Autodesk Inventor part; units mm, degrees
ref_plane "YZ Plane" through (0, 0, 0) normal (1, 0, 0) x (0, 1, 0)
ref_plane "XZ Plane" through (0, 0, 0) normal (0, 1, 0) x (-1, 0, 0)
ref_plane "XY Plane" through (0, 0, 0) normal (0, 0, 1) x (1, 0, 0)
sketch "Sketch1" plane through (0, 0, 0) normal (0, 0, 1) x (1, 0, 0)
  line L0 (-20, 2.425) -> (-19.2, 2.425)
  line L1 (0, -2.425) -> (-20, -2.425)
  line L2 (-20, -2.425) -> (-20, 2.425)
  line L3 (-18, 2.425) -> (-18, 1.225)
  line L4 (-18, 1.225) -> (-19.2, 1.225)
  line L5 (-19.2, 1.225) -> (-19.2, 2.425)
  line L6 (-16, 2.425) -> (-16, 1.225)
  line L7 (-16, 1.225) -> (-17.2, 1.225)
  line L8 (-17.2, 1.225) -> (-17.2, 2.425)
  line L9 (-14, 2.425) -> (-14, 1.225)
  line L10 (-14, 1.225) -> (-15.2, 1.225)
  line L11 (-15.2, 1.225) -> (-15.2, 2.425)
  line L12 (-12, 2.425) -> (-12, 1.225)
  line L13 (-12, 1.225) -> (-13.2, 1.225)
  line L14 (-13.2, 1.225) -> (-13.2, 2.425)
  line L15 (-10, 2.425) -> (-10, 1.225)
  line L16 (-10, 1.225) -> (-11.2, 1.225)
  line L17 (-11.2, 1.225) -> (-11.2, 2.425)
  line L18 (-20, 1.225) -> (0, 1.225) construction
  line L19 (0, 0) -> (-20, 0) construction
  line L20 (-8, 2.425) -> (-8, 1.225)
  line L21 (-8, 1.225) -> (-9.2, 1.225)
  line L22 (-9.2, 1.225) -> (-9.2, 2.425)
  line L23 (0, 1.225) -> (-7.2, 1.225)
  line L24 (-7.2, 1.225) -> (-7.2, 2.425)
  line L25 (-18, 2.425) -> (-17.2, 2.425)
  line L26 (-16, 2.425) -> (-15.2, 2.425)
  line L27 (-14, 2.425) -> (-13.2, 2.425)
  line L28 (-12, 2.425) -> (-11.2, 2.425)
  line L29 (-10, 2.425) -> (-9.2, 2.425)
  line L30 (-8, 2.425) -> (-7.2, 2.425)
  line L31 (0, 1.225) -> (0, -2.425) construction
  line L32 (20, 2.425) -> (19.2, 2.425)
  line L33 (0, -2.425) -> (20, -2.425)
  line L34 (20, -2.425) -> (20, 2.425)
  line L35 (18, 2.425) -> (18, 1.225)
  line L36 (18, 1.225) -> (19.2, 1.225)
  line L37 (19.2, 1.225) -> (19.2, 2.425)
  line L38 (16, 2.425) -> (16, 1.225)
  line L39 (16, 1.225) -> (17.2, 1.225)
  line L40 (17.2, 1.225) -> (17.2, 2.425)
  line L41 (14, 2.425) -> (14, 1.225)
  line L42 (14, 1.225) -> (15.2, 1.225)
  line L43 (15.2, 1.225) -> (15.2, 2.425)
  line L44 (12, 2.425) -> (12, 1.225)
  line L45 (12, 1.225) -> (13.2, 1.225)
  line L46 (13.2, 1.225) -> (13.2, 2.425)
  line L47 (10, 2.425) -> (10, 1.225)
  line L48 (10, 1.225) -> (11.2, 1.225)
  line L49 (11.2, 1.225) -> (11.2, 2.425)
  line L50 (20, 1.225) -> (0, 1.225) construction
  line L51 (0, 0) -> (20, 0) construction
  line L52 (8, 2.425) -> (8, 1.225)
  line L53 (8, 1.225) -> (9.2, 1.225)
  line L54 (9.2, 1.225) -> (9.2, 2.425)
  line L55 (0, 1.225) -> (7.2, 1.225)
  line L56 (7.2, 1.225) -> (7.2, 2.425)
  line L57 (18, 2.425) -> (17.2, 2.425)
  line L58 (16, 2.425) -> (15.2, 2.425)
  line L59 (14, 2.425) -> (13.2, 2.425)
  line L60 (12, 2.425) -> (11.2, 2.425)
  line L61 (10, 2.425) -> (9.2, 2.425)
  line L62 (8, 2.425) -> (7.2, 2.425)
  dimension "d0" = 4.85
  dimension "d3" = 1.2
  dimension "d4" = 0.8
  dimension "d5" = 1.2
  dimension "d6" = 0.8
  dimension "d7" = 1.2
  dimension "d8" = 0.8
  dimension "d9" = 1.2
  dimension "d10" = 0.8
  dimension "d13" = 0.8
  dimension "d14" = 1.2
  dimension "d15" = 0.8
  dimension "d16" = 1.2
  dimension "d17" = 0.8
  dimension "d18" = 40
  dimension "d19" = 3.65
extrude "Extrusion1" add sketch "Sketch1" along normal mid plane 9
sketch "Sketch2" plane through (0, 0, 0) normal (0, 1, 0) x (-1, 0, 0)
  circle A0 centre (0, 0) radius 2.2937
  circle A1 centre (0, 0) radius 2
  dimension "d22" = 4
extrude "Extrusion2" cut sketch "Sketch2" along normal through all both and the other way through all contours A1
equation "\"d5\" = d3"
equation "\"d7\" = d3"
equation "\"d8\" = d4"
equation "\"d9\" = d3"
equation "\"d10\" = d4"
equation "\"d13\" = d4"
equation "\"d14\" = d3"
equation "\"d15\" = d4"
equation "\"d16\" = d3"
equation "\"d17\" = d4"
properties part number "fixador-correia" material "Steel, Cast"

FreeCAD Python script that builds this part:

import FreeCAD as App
import Part
import Sketcher
from FreeCAD import Vector

doc = App.newDocument("Part")
body = doc.addObject("PartDesign::Body", "Body")

sketch1 = body.newObject("Sketcher::SketchObject", "Sketch")
sketch1.AttachmentSupport = (doc.getObject("XY_Plane"), [""])
sketch1.MapMode = "FlatFace"
sketch1.addGeometry([
    Part.LineSegment(Vector(-19.2, 2.4, 0), Vector(-20, 2.4, 0)),
    Part.LineSegment(Vector(-20, 2.4, 0), Vector(-20, -2.4, 0)),
    Part.LineSegment(Vector(-20, -2.4, 0), Vector(20, -2.4, 0)),
    Part.LineSegment(Vector(20, -2.4, 0), Vector(20, 2.4, 0)),
    Part.LineSegment(Vector(20, 2.4, 0), Vector(19.2, 2.4, 0)),
    Part.LineSegment(Vector(19.2, 2.4, 0), Vector(19.2, 1.2, 0)),
    Part.LineSegment(Vector(19.2, 1.2, 0), Vector(18, 1.2, 0)),
    Part.LineSegment(Vector(18, 1.2, 0), Vector(18, 2.4, 0)),
    Part.LineSegment(Vector(18, 2.4, 0), Vector(17.2, 2.4, 0)),
    Part.LineSegment(Vector(17.2, 2.4, 0), Vector(17.2, 1.2, 0)),
    Part.LineSegment(Vector(17.2, 1.2, 0), Vector(16, 1.2, 0)),
    Part.LineSegment(Vector(16, 1.2, 0), Vector(16, 2.4, 0)),
    Part.LineSegment(Vector(16, 2.4, 0), Vector(15.2, 2.4, 0)),
    Part.LineSegment(Vector(15.2, 2.4, 0), Vector(15.2, 1.2, 0)),
    Part.LineSegment(Vector(15.2, 1.2, 0), Vector(14, 1.2, 0)),
    Part.LineSegment(Vector(14, 1.2, 0), Vector(14, 2.4, 0)),
    Part.LineSegment(Vector(14, 2.4, 0), Vector(13.2, 2.4, 0)),
    Part.LineSegment(Vector(13.2, 2.4, 0), Vector(13.2, 1.2, 0)),
    Part.LineSegment(Vector(13.2, 1.2, 0), Vector(12, 1.2, 0)),
    Part.LineSegment(Vector(12, 1.2, 0), Vector(12, 2.4, 0)),
    Part.LineSegment(Vector(12, 2.4, 0), Vector(11.2, 2.4, 0)),
    Part.LineSegment(Vector(11.2, 2.4, 0), Vector(11.2, 1.2, 0)),
    Part.LineSegment(Vector(11.2, 1.2, 0), Vector(10, 1.2, 0)),
    Part.LineSegment(Vector(10, 1.2, 0), Vector(10, 2.4, 0)),
    Part.LineSegment(Vector(10, 2.4, 0), Vector(9.2, 2.4, 0)),
    Part.LineSegment(Vector(9.2, 2.4, 0), Vector(9.2, 1.2, 0)),
    Part.LineSegment(Vector(9.2, 1.2, 0), Vector(8, 1.2, 0)),
    Part.LineSegment(Vector(8, 1.2, 0), Vector(8, 2.4, 0)),
    Part.LineSegment(Vector(8, 2.4, 0), Vector(7.2, 2.4, 0)),
    Part.LineSegment(Vector(7.2, 2.4, 0), Vector(7.2, 1.2, 0)),
    Part.LineSegment(Vector(7.2, 1.2, 0), Vector(-7.2, 1.2, 0)),
    Part.LineSegment(Vector(-7.2, 1.2, 0), Vector(-7.2, 2.4, 0)),
    Part.LineSegment(Vector(-7.2, 2.4, 0), Vector(-8, 2.4, 0)),
    Part.LineSegment(Vector(-8, 2.4, 0), Vector(-8, 1.2, 0)),
    Part.LineSegment(Vector(-8, 1.2, 0), Vector(-9.2, 1.2, 0)),
    Part.LineSegment(Vector(-9.2, 1.2, 0), Vector(-9.2, 2.4, 0)),
    Part.LineSegment(Vector(-9.2, 2.4, 0), Vector(-10, 2.4, 0)),
    Part.LineSegment(Vector(-10, 2.4, 0), Vector(-10, 1.2, 0)),
    Part.LineSegment(Vector(-10, 1.2, 0), Vector(-11.2, 1.2, 0)),
    Part.LineSegment(Vector(-11.2, 1.2, 0), Vector(-11.2, 2.4, 0)),
    Part.LineSegment(Vector(-11.2, 2.4, 0), Vector(-12, 2.4, 0)),
    Part.LineSegment(Vector(-12, 2.4, 0), Vector(-12, 1.2, 0)),
    Part.LineSegment(Vector(-12, 1.2, 0), Vector(-13.2, 1.2, 0)),
    Part.LineSegment(Vector(-13.2, 1.2, 0), Vector(-13.2, 2.4, 0)),
    Part.LineSegment(Vector(-13.2, 2.4, 0), Vector(-14, 2.4, 0)),
    Part.LineSegment(Vector(-14, 2.4, 0), Vector(-14, 1.2, 0)),
    Part.LineSegment(Vector(-14, 1.2, 0), Vector(-15.2, 1.2, 0)),
    Part.LineSegment(Vector(-15.2, 1.2, 0), Vector(-15.2, 2.4, 0)),
    Part.LineSegment(Vector(-15.2, 2.4, 0), Vector(-16, 2.4, 0)),
    Part.LineSegment(Vector(-16, 2.4, 0), Vector(-16, 1.2, 0)),
    Part.LineSegment(Vector(-16, 1.2, 0), Vector(-17.2, 1.2, 0)),
    Part.LineSegment(Vector(-17.2, 1.2, 0), Vector(-17.2, 2.4, 0)),
    Part.LineSegment(Vector(-17.2, 2.4, 0), Vector(-18, 2.4, 0)),
    Part.LineSegment(Vector(-18, 2.4, 0), Vector(-18, 1.2, 0)),
    Part.LineSegment(Vector(-18, 1.2, 0), Vector(-19.2, 1.2, 0)),
    Part.LineSegment(Vector(-19.2, 1.2, 0), Vector(-19.2, 2.4, 0)),
], False)
sketch1.addConstraint([
    Sketcher.Constraint("Coincident", 0, 2, 1, 1),
    Sketcher.Constraint("Coincident", 1, 2, 2, 1),
    Sketcher.Constraint("Coincident", 2, 2, 3, 1),
    Sketcher.Constraint("Coincident", 3, 2, 4, 1),
    Sketcher.Constraint("Coincident", 4, 2, 5, 1),
    Sketcher.Constraint("Coincident", 5, 2, 6, 1),
    Sketcher.Constraint("Coincident", 6, 2, 7, 1),
    Sketcher.Constraint("Coincident", 7, 2, 8, 1),
    Sketcher.Constraint("Coincident", 8, 2, 9, 1),
    Sketcher.Constraint("Coincident", 9, 2, 10, 1),
    Sketcher.Constraint("Coincident", 10, 2, 11, 1),
    Sketcher.Constraint("Coincident", 11, 2, 12, 1),
    Sketcher.Constraint("Coincident", 12, 2, 13, 1),
    Sketcher.Constraint("Coincident", 13, 2, 14, 1),
    Sketcher.Constraint("Coincident", 14, 2, 15, 1),
    Sketcher.Constraint("Coincident", 15, 2, 16, 1),
    Sketcher.Constraint("Coincident", 16, 2, 17, 1),
    Sketcher.Constraint("Coincident", 17, 2, 18, 1),
    Sketcher.Constraint("Coincident", 18, 2, 19, 1),
    Sketcher.Constraint("Coincident", 19, 2, 20, 1),
    Sketcher.Constraint("Coincident", 20, 2, 21, 1),
    Sketcher.Constraint("Coincident", 21, 2, 22, 1),
    Sketcher.Constraint("Coincident", 22, 2, 23, 1),
    Sketcher.Constraint("Coincident", 23, 2, 24, 1),
    Sketcher.Constraint("Coincident", 24, 2, 25, 1),
    Sketcher.Constraint("Coincident", 25, 2, 26, 1),
    Sketcher.Constraint("Coincident", 26, 2, 27, 1),
    Sketcher.Constraint("Coincident", 27, 2, 28, 1),
    Sketcher.Constraint("Coincident", 28, 2, 29, 1),
    Sketcher.Constraint("Coincident", 29, 2, 30, 1),
    Sketcher.Constraint("Coincident", 30, 2, 31, 1),
    Sketcher.Constraint("Coincident", 31, 2, 32, 1),
    Sketcher.Constraint("Coincident", 32, 2, 33, 1),
    Sketcher.Constraint("Coincident", 33, 2, 34, 1),
    Sketcher.Constraint("Coincident", 34, 2, 35, 1),
    Sketcher.Constraint("Coincident", 35, 2, 36, 1),
    Sketcher.Constraint("Coincident", 36, 2, 37, 1),
    Sketcher.Constraint("Coincident", 37, 2, 38, 1),
    Sketcher.Constraint("Coincident", 38, 2, 39, 1),
    Sketcher.Constraint("Coincident", 39, 2, 40, 1),
    Sketcher.Constraint("Coincident", 40, 2, 41, 1),
    Sketcher.Constraint("Coincident", 41, 2, 42, 1),
    Sketcher.Constraint("Coincident", 42, 2, 43, 1),
    Sketcher.Constraint("Coincident", 43, 2, 44, 1),
    Sketcher.Constraint("Coincident", 44, 2, 45, 1),
    Sketcher.Constraint("Coincident", 45, 2, 46, 1),
    Sketcher.Constraint("Coincident", 46, 2, 47, 1),
    Sketcher.Constraint("Coincident", 47, 2, 48, 1),
    Sketcher.Constraint("Coincident", 48, 2, 49, 1),
    Sketcher.Constraint("Coincident", 49, 2, 50, 1),
    Sketcher.Constraint("Coincident", 50, 2, 51, 1),
    Sketcher.Constraint("Coincident", 51, 2, 52, 1),
    Sketcher.Constraint("Coincident", 52, 2, 53, 1),
    Sketcher.Constraint("Coincident", 53, 2, 54, 1),
    Sketcher.Constraint("Coincident", 54, 2, 55, 1),
    Sketcher.Constraint("Coincident", 55, 2, 0, 1),
    Sketcher.Constraint("Horizontal", 0),
    Sketcher.Constraint("Vertical", 1),
    Sketcher.Constraint("Horizontal", 2),
    Sketcher.Constraint("Vertical", 3),
    Sketcher.Constraint("Horizontal", 4),
    Sketcher.Constraint("Vertical", 5),
    Sketcher.Constraint("Horizontal", 6),
    Sketcher.Constraint("Vertical", 7),
    Sketcher.Constraint("Horizontal", 8),
    Sketcher.Constraint("Vertical", 9),
    Sketcher.Constraint("Horizontal", 10),
    Sketcher.Constraint("Vertical", 11),
    Sketcher.Constraint("Horizontal", 12),
    Sketcher.Constraint("Vertical", 13),
    Sketcher.Constraint("Horizontal", 14),
    Sketcher.Constraint("Vertical", 15),
    Sketcher.Constraint("Horizontal", 16),
    Sketcher.Constraint("Vertical", 17),
    Sketcher.Constraint("Horizontal", 18),
    Sketcher.Constraint("Vertical", 19),
    Sketcher.Constraint("Horizontal", 20),
    Sketcher.Constraint("Vertical", 21),
    Sketcher.Constraint("Horizontal", 22),
    Sketcher.Constraint("Vertical", 23),
    Sketcher.Constraint("Horizontal", 24),
    Sketcher.Constraint("Vertical", 25),
    Sketcher.Constraint("Horizontal", 26),
    Sketcher.Constraint("Vertical", 27),
    Sketcher.Constraint("Horizontal", 28),
    Sketcher.Constraint("Vertical", 29),
    Sketcher.Constraint("Horizontal", 30),
    Sketcher.Constraint("Vertical", 31),
    Sketcher.Constraint("Horizontal", 32),
    Sketcher.Constraint("Vertical", 33),
    Sketcher.Constraint("Horizontal", 34),
    Sketcher.Constraint("Vertical", 35),
    Sketcher.Constraint("Horizontal", 36),
    Sketcher.Constraint("Vertical", 37),
    Sketcher.Constraint("Horizontal", 38),
    Sketcher.Constraint("Vertical", 39),
    Sketcher.Constraint("Horizontal", 40),
    Sketcher.Constraint("Vertical", 41),
    Sketcher.Constraint("Horizontal", 42),
    Sketcher.Constraint("Vertical", 43),
    Sketcher.Constraint("Horizontal", 44),
    Sketcher.Constraint("Vertical", 45),
    Sketcher.Constraint("Horizontal", 46),
    Sketcher.Constraint("Vertical", 47),
    Sketcher.Constraint("Horizontal", 48),
    Sketcher.Constraint("Vertical", 49),
    Sketcher.Constraint("Horizontal", 50),
    Sketcher.Constraint("Vertical", 51),
    Sketcher.Constraint("Horizontal", 52),
    Sketcher.Constraint("Vertical", 53),
    Sketcher.Constraint("Horizontal", 54),
    Sketcher.Constraint("Vertical", 55),
    Sketcher.Constraint("Symmetric", 0, 2, 2, 2, -1, 1),
    Sketcher.Constraint("Symmetric", 28, 2, 31, 2, -2),
    Sketcher.Constraint("Symmetric", 26, 2, 33, 2, -2),
    Sketcher.Constraint("Symmetric", 24, 2, 35, 2, -2),
    Sketcher.Constraint("Symmetric", 22, 2, 37, 2, -2),
    Sketcher.Constraint("Symmetric", 20, 2, 39, 2, -2),
    Sketcher.Constraint("Symmetric", 18, 2, 41, 2, -2),
    Sketcher.Constraint("Symmetric", 16, 2, 43, 2, -2),
    Sketcher.Constraint("Symmetric", 14, 2, 45, 2, -2),
    Sketcher.Constraint("Symmetric", 12, 2, 47, 2, -2),
    Sketcher.Constraint("Symmetric", 10, 2, 49, 2, -2),
    Sketcher.Constraint("Symmetric", 8, 2, 51, 2, -2),
    Sketcher.Constraint("Symmetric", 6, 2, 53, 2, -2),
    Sketcher.Constraint("Symmetric", 4, 2, 55, 2, -2),
    Sketcher.Constraint("Horizontal", 4, 2, 7, 2),
    Sketcher.Constraint("Horizontal", 6, 2, 9, 2),
    Sketcher.Constraint("Horizontal", 8, 2, 11, 2),
    Sketcher.Constraint("Horizontal", 10, 2, 13, 2),
    Sketcher.Constraint("Horizontal", 12, 2, 15, 2),
    Sketcher.Constraint("Horizontal", 14, 2, 17, 2),
    Sketcher.Constraint("Horizontal", 16, 2, 19, 2),
    Sketcher.Constraint("Horizontal", 18, 2, 21, 2),
    Sketcher.Constraint("Horizontal", 20, 2, 23, 2),
    Sketcher.Constraint("Horizontal", 22, 2, 25, 2),
    Sketcher.Constraint("Horizontal", 24, 2, 27, 2),
    Sketcher.Constraint("Horizontal", 26, 2, 29, 2),
    Sketcher.Constraint("Equal", 4, 8),
    Sketcher.Constraint("Equal", 6, 10),
    Sketcher.Constraint("Equal", 8, 12),
    Sketcher.Constraint("Equal", 10, 14),
    Sketcher.Constraint("Equal", 12, 16),
    Sketcher.Constraint("Equal", 14, 18),
    Sketcher.Constraint("Equal", 16, 20),
    Sketcher.Constraint("Equal", 18, 22),
    Sketcher.Constraint("Equal", 20, 24),
    Sketcher.Constraint("Equal", 22, 26),
    Sketcher.Constraint("Equal", 24, 28),
    Sketcher.Constraint("Equal", 54, 5),
    Sketcher.Constraint("DistanceX", 2, 1, 2, 2, 40.0),
    Sketcher.Constraint("DistanceX", 0, 2, 0, 1, 0.8),
    Sketcher.Constraint("DistanceX", 6, 2, 6, 1, 1.2),
    Sketcher.Constraint("DistanceY", 1, 2, 1, 1, 4.85),
])
pad1 = body.newObject("PartDesign::Pad", "Pad")
pad1.Profile = sketch1
pad1.Length = 9
pad1.Midplane = True

sketch2 = body.newObject("Sketcher::SketchObject", "Sketch001")
sketch2.AttachmentSupport = (doc.getObject("XZ_Plane"), [""])
sketch2.MapMode = "FlatFace"
sketch2.addGeometry(Part.Circle(Vector(0, 0, 0), Vector(0, 0, 1), 2), False)
sketch2.addConstraint([
    Sketcher.Constraint("Coincident", 0, 3, -1, 1),
    Sketcher.Constraint("Diameter", 0, 4.0),
])
pocket1 = body.newObject("PartDesign::Pocket", "Pocket")
pocket1.Profile = sketch2
pocket1.Type = "ThroughAll"
pocket1.Midplane = True

doc.recompute()
